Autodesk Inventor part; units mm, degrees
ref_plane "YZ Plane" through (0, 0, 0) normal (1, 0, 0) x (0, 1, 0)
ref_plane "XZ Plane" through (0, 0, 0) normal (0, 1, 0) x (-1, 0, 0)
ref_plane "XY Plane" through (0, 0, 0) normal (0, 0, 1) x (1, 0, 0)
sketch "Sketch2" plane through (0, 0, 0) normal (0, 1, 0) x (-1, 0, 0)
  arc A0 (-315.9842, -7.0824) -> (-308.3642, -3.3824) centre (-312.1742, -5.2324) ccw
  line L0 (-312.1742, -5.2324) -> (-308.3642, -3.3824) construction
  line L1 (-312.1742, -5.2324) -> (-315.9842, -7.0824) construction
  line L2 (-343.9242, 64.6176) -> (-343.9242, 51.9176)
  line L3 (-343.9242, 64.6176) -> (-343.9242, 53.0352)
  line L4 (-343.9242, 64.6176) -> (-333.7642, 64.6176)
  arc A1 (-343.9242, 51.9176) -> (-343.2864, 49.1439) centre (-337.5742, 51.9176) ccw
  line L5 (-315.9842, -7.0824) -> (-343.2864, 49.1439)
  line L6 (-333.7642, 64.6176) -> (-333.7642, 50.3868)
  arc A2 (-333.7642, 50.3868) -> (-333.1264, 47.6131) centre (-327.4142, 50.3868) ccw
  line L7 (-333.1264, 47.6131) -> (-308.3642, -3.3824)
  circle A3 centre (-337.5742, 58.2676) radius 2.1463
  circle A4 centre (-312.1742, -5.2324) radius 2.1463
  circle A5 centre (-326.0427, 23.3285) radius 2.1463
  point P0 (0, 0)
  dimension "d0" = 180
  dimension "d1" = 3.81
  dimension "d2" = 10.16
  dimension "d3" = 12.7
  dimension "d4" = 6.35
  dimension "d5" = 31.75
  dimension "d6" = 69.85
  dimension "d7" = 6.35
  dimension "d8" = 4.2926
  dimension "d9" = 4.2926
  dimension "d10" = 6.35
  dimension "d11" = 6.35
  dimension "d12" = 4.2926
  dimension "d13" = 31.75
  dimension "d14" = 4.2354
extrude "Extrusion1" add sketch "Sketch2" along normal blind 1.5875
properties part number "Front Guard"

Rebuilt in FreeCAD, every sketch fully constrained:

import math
import FreeCAD as App
import Part
import Sketcher
from FreeCAD import Vector
Q = App.Units.Quantity

doc = App.newDocument("Part")
body = doc.addObject("PartDesign::Body", "Body")

sketch1 = doc.addObject("Sketcher::SketchObject", "Sketch")
body.addObject(sketch1)
sketch1.AttachmentSupport = (doc.XZ_Plane, [""])
sketch1.MapMode = "FlatFace"
sketch1.addGeometry([
    Part.LineSegment(Vector(343.2864, 49.1439, 0), Vector(315.9842, -7.0824, 0)),
    Part.ArcOfCircle(Part.Circle(Vector(312.1742, -5.2324, 0), Vector(0, 0, 1), 4.235398), math.radians(154.100445), math.radians(334.100445)),
    Part.LineSegment(Vector(308.3642, -3.3824, 0), Vector(333.1264, 47.6131, 0)),
    Part.ArcOfCircle(Part.Circle(Vector(327.4142, 50.3868, 0), Vector(0, 0, 1), 6.35), math.radians(-25.900038), math.radians(0)),
    Part.LineSegment(Vector(333.7642, 50.3868, 0), Vector(333.7642, 64.6176, 0)),
    Part.LineSegment(Vector(333.7642, 64.6176, 0), Vector(343.9242, 64.6176, 0)),
    Part.LineSegment(Vector(343.9242, 64.6176, 0), Vector(343.9242, 51.9176, 0)),
    Part.ArcOfCircle(Part.Circle(Vector(337.5742, 51.9176, 0), Vector(0, 0, 1), 6.35), math.radians(-25.900038), math.radians(0)),
    Part.Circle(Vector(326.0427, 23.3285, 0), Vector(0, 0, 1), 2.1463),
    Part.Circle(Vector(312.1742, -5.2324, 0), Vector(0, 0, 1), 2.1463),
    Part.Circle(Vector(337.5742, 58.2676, 0), Vector(0, 0, 1), 2.1463),
], False)
sketch1.addConstraint([
    Sketcher.Constraint("Tangent", 0, 2, 1, 2),
    Sketcher.Constraint("Tangent", 1, 1, 2, 1),
    Sketcher.Constraint("Tangent", 2, 2, 3, 1),
    Sketcher.Constraint("Tangent", 3, 2, 4, 1),
    Sketcher.Constraint("Coincident", 4, 2, 5, 1),
    Sketcher.Constraint("Coincident", 5, 2, 6, 1),
    Sketcher.Constraint("Tangent", 6, 2, 7, 2),
    Sketcher.Constraint("Tangent", 7, 1, 0, 1),
    Sketcher.Constraint("Vertical", 4),
    Sketcher.Constraint("Horizontal", 5),
    Sketcher.Constraint("Vertical", 6),
    Sketcher.Constraint("Coincident", 9, 3, 1, 3),
    Sketcher.Constraint("Equal", 3, 7),
    Sketcher.Constraint("Equal", 8, 9),
    Sketcher.Constraint("Equal", 9, 10),
    Sketcher.Constraint("Parallel", 0, 2),
    Sketcher.Constraint("Vertical", 7, 3, 10, 3),
    Sketcher.Constraint("Radius", 3, Q("0.25 in")),
    Sketcher.Constraint("Diameter", 8, Q("0.169 in")),
    Sketcher.Constraint("DistanceX", 5, 1, 5, 2, Q("0.4 in")),
    Sketcher.Constraint("DistanceY", 6, 2, 6, 1, Q("0.5 in")),
    Sketcher.Constraint("Radius", 1, Q("4.2354 mm")),
    Sketcher.Constraint("DistanceY", 7, 3, 10, 3, Q("0.25 in")),
    Sketcher.Constraint("DistanceX", 1, 3, 0, 2, Q("0.15 in")),
    Sketcher.Constraint("DistanceX", 1, 3, 7, 3, Q("1 in")),
    Sketcher.Constraint("DistanceY", 1, 3, -1, 1, Q("0.206 in")),
    Sketcher.Constraint("DistanceX", 8, 3, 3, 3, Q("0.054 in")),
    Sketcher.Constraint("DistanceY", 1, 1, 8, 3, Q("1.0516 in")),
    Sketcher.Constraint("DistanceX", -1, 1, 1, 3, Q("312.1742 mm")),
])
pad1 = doc.addObject("PartDesign::Pad", "Pad")
body.addObject(pad1)
pad1.Profile = sketch1
pad1.Length = Q("0.0625 in")
pad1.Reversed = True

doc.recompute()
